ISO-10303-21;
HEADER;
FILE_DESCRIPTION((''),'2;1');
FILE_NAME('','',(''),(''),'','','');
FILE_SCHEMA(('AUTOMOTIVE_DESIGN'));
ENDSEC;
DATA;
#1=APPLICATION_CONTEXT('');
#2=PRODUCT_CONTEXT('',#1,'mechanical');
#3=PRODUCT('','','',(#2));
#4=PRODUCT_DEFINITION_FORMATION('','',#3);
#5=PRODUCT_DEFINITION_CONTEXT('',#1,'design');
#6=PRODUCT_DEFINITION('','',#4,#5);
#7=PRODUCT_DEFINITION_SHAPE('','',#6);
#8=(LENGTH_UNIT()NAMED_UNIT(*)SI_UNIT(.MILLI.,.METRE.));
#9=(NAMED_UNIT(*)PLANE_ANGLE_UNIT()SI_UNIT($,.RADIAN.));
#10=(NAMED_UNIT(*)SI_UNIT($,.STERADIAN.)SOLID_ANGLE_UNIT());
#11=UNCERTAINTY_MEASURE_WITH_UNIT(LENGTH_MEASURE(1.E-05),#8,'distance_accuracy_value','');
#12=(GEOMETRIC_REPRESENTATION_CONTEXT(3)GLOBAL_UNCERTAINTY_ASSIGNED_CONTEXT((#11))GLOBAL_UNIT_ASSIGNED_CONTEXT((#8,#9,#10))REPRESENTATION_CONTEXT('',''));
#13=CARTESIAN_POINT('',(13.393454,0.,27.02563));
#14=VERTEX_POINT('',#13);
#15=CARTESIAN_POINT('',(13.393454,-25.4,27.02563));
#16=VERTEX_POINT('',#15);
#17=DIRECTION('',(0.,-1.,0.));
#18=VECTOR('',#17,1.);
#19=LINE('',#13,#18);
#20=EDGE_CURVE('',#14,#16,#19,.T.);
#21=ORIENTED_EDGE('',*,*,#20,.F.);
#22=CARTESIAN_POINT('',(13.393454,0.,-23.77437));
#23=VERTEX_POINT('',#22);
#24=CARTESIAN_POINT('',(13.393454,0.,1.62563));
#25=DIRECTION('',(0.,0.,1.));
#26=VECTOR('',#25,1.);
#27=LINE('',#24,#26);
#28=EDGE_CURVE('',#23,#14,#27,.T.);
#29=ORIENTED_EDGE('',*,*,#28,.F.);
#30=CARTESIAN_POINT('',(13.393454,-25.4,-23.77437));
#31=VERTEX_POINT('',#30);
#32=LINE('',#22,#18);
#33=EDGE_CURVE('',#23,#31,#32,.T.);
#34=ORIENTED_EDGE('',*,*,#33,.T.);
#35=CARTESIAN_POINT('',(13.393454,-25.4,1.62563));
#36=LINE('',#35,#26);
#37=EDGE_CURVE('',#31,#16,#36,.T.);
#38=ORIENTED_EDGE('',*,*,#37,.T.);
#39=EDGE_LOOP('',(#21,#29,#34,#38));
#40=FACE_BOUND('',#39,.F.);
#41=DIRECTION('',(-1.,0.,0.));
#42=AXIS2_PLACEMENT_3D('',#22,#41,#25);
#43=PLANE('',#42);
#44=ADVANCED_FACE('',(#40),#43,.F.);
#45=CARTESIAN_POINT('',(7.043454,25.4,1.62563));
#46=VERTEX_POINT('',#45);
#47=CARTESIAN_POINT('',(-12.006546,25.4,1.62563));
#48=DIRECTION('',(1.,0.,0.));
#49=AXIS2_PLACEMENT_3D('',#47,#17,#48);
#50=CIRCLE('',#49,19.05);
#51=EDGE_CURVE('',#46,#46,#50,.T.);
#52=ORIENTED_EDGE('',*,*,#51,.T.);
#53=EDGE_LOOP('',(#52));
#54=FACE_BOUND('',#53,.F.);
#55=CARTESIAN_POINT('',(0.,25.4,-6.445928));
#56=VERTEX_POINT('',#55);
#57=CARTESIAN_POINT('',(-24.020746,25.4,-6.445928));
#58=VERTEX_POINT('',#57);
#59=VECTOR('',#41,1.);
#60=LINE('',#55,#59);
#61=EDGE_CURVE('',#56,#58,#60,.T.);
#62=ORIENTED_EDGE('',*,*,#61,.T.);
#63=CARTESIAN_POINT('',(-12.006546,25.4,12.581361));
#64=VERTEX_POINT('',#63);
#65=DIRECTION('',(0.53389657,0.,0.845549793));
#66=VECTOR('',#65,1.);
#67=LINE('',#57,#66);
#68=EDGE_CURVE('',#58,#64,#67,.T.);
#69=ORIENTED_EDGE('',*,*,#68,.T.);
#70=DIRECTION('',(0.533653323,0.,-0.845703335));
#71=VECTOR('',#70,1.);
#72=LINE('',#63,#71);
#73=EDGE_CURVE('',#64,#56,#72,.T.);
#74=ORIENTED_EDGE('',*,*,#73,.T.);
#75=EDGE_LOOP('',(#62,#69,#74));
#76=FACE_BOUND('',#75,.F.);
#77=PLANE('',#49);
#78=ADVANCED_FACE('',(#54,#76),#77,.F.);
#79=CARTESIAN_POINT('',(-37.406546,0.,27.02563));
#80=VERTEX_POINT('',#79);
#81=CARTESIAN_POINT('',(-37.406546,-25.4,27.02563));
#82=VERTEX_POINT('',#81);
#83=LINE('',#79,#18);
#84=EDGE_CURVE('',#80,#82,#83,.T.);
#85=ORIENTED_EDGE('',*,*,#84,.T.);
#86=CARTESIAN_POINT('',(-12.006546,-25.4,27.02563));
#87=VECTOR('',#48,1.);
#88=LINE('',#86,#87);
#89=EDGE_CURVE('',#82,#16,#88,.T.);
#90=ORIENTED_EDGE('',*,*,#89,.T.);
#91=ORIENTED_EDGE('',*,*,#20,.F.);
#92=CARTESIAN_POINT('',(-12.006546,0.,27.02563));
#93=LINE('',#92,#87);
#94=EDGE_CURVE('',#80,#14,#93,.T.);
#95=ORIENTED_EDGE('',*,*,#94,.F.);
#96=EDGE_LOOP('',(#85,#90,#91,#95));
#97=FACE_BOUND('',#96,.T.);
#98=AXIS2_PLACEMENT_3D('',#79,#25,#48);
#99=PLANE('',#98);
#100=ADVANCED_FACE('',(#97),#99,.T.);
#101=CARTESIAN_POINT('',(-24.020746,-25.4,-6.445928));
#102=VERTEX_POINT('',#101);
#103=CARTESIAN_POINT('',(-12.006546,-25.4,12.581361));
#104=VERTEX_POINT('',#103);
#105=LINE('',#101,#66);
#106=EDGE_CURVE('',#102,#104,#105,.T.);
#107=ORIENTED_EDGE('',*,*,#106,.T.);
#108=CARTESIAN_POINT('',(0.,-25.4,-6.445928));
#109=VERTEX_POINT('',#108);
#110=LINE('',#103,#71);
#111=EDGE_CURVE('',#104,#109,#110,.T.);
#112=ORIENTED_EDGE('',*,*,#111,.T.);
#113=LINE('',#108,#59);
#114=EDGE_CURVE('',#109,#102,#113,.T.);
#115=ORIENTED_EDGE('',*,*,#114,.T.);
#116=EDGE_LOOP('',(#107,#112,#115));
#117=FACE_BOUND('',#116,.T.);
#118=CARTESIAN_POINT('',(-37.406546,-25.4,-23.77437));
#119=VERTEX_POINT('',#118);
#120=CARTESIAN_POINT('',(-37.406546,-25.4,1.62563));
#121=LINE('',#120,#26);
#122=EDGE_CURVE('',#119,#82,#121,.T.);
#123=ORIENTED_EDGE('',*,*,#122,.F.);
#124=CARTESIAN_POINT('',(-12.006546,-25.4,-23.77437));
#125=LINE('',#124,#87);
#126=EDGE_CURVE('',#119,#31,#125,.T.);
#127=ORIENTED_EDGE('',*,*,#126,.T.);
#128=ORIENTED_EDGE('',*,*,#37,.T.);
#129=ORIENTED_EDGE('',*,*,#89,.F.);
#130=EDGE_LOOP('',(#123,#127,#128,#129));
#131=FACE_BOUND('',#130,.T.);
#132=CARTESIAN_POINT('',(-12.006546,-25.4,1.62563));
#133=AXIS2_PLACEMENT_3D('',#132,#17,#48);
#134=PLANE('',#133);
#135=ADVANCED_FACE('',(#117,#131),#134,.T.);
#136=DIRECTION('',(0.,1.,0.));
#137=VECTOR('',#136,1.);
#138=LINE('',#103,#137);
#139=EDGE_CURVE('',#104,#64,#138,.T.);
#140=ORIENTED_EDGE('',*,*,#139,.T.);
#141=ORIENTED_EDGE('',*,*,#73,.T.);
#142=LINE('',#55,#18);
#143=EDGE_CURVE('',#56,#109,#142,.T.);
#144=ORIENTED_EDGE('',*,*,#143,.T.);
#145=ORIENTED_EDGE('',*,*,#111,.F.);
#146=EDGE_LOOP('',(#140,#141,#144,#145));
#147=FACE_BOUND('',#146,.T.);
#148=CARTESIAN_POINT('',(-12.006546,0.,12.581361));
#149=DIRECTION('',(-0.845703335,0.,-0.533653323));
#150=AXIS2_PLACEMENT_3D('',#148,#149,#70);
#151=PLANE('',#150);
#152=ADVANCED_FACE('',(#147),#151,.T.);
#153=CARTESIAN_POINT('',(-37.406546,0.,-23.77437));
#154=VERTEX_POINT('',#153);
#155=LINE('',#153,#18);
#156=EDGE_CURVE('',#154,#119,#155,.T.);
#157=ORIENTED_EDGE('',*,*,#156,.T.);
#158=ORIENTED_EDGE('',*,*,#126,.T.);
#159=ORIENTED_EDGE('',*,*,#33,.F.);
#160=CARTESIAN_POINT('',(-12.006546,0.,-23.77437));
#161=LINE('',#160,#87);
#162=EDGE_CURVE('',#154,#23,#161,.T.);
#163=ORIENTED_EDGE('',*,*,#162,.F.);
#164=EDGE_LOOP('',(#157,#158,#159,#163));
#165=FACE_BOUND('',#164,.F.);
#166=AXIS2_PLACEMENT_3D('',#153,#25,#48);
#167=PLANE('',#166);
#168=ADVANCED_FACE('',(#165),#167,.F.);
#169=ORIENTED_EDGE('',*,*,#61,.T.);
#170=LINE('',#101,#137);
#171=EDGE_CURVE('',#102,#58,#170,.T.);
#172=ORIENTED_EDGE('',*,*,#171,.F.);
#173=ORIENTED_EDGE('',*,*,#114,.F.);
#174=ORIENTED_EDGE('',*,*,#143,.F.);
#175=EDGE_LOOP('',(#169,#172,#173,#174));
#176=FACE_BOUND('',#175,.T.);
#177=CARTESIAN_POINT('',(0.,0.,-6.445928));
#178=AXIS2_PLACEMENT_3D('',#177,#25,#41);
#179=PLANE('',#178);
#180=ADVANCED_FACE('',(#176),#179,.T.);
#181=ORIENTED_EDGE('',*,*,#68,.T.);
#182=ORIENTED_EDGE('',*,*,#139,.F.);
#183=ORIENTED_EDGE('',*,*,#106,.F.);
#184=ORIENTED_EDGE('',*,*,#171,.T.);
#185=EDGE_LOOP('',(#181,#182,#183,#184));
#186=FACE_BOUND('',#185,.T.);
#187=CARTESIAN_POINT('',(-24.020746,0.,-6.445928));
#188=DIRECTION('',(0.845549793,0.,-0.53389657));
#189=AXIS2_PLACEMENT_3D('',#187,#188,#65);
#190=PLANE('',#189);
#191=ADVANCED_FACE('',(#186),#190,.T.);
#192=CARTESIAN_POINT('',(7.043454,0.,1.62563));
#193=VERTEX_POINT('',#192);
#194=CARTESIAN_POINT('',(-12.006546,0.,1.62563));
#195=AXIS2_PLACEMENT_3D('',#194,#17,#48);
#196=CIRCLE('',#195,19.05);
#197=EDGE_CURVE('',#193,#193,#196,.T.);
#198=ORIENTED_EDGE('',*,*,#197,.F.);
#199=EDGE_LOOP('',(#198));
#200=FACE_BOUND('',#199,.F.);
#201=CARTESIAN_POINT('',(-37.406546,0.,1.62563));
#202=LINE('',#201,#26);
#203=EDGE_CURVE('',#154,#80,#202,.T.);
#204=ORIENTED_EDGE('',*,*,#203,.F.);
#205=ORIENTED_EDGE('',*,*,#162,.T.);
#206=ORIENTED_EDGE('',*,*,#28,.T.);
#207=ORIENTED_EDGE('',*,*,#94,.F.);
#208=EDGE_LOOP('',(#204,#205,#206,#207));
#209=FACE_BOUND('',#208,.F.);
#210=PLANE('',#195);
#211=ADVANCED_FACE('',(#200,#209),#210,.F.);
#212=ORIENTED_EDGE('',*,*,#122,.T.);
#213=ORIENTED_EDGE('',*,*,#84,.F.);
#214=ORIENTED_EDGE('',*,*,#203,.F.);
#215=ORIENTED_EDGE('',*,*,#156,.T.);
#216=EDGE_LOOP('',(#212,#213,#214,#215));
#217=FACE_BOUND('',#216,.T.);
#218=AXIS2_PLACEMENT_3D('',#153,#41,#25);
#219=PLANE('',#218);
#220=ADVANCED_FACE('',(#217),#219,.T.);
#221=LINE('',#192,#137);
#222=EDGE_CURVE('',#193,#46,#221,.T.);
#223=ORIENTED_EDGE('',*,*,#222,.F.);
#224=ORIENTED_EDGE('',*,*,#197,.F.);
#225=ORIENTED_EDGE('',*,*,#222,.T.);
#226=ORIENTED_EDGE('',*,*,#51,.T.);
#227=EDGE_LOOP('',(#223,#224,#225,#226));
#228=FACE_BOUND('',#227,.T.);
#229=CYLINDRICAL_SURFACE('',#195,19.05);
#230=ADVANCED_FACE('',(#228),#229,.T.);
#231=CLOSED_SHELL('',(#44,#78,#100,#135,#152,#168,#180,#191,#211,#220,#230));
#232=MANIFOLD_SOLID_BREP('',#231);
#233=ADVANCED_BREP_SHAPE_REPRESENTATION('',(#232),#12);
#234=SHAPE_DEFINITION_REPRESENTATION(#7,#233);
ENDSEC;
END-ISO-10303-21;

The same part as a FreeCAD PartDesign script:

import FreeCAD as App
import Part
import Sketcher
Q = App.Units.Quantity


def add_polygon(sketch, points):
    """Adds a closed chain of lines whose ends are joined by coincident constraints."""
    first, n = sketch.GeometryCount, len(points)
    for a, b in zip(points, points[1:] + points[:1]):
        sketch.addGeometry(Part.LineSegment(App.Vector(*a, 0), App.Vector(*b, 0)), False)
    for i in range(n):
        sketch.addConstraint(Sketcher.Constraint("Coincident", first + i, 2, first + (i + 1) % n, 1))

doc = App.newDocument("Part")
body = doc.addObject("PartDesign::Body", "Body")

# Sketch on XZ plane
sketch1 = body.newObject("Sketcher::SketchObject", "Sketch")
sketch1.AttachmentSupport = (doc.getObject("XZ_Plane"), [""])
sketch1.MapMode = "FlatFace"
add_polygon(sketch1, [(-37, 27), (-37, -24), (13, -24), (13, 27)])  # lines 0-3
add_polygon(sketch1, [(-12, 13), (0, -6), (-24, -6)])  # lines 4-6
sketch1.addConstraint(Sketcher.Constraint("Vertical", 0))
sketch1.addConstraint(Sketcher.Constraint("Horizontal", 1))
sketch1.addConstraint(Sketcher.Constraint("Vertical", 2))
sketch1.addConstraint(Sketcher.Constraint("Horizontal", 3))
sketch1.addConstraint(Sketcher.Constraint("Horizontal", 5))
sketch1.addConstraint(Sketcher.Constraint("PointOnObject", 4, 2, -2))
sketch1.addConstraint(Sketcher.Constraint("Equal", 3, 0))
sketch1.addConstraint(Sketcher.Constraint("DistanceX", 1, 1, 1, 2, Q("2 in")))
sketch1.addConstraint(Sketcher.Constraint("DistanceX", 6, 2, 2, 2, Q("1 in")))
sketch1.addConstraint(Sketcher.Constraint("DistanceX", 0, 2, 5, 2, Q("0.527 in")))
sketch1.addConstraint(Sketcher.Constraint("Distance", 6, 22.50286))
sketch1.addConstraint(Sketcher.Constraint("DistanceX", 5, 2, 5, 1, 24.020746))
sketch1.addConstraint(Sketcher.Constraint("DistanceY", 0, 2, -1, 1, 23.77437))
sketch1.addConstraint(Sketcher.Constraint("DistanceY", 4, 2, -1, 1, 6.445928))
pad1 = body.newObject("PartDesign::Pad", "Pad")
pad1.Profile = sketch1
pad1.Length = Q("1 in")

# Sketch on XZ plane
sketch2 = body.newObject("Sketcher::SketchObject", "Sketch001")
sketch2.AttachmentSupport = (doc.getObject("XZ_Plane"), [""])
sketch2.MapMode = "FlatFace"
sketch2.addGeometry(Part.Circle(App.Vector(-12, 2, 0), App.Vector(0, 0, 1), 19), False)  # 0
add_polygon(sketch2, [(-12, 13), (0, -6), (-24, -6)])  # lines 1-3
sketch2.addConstraint(Sketcher.Constraint("Horizontal", 2))
sketch2.addConstraint(Sketcher.Constraint("PointOnObject", 1, 2, -2))
sketch2.addConstraint(Sketcher.Constraint("Vertical", 0, 3, 3, 2))
sketch2.addConstraint(Sketcher.Constraint("Diameter", 0, Q("1.5 in")))
sketch2.addConstraint(Sketcher.Constraint("DistanceX", 2, 2, 0, 3, Q("0.473 in")))
sketch2.addConstraint(Sketcher.Constraint("Distance", 3, 22.50286))
sketch2.addConstraint(Sketcher.Constraint("DistanceX", 2, 2, 2, 1, 24.020746))
sketch2.addConstraint(Sketcher.Constraint("DistanceY", -1, 1, 0, 3, 1.62563))
sketch2.addConstraint(Sketcher.Constraint("DistanceY", 1, 2, -1, 1, 6.445928))
pad2 = body.newObject("PartDesign::Pad", "Pad001")
pad2.Profile = sketch2
pad2.Length = Q("1 in")
pad2.Reversed = True

doc.recompute()
